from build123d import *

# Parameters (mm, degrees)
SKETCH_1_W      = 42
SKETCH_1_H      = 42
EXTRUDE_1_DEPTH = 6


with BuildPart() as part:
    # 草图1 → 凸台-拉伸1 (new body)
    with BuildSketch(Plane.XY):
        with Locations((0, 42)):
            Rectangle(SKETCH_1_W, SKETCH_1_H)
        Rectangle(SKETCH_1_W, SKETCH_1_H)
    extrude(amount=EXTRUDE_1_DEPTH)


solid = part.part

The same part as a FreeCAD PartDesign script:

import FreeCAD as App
import Part
import Sketcher
from FreeCAD import Vector
Q = App.Units.Quantity

doc = App.newDocument("Part")
params = doc.addObject("Spreadsheet::Sheet", "Params")
for row, (alias, value) in enumerate([
    ("sketch1_width", "42 mm"),
    ("sketch1_height", "84 mm"),
    ("pad1_length", "6 mm"),
], start=1):
    params.set(f"A{row}", alias)
    params.set(f"B{row}", "=" + value)
    params.setAlias(f"B{row}", alias)

body = doc.addObject("PartDesign::Body", "Body")

# Sketch on XY plane
sketch1 = doc.addObject("Sketcher::SketchObject", "Sketch")
body.addObject(sketch1)
sketch1.AttachmentSupport = (doc.XY_Plane, [""])
sketch1.MapMode = "FlatFace"
sketch1.addGeometry([
    Part.LineSegment(Vector(-21, 63, 0), Vector(-21, -21, 0)),
    Part.LineSegment(Vector(-21, -21, 0), Vector(21, -21, 0)),
    Part.LineSegment(Vector(21, -21, 0), Vector(21, 63, 0)),
    Part.LineSegment(Vector(21, 63, 0), Vector(-21, 63, 0)),
], False)
sketch1.addConstraint([
    Sketcher.Constraint("Coincident", 0, 2, 1, 1),
    Sketcher.Constraint("Coincident", 1, 2, 2, 1),
    Sketcher.Constraint("Coincident", 2, 2, 3, 1),
    Sketcher.Constraint("Coincident", 3, 2, 0, 1),
    Sketcher.Constraint("Vertical", 0),
    Sketcher.Constraint("Horizontal", 1),
    Sketcher.Constraint("Vertical", 2),
    Sketcher.Constraint("Horizontal", 3),
    Sketcher.Constraint("DistanceX", 1, 1, 1, 2, Q("42 mm")),
    Sketcher.Constraint("DistanceY", 0, 2, 0, 1, Q("84 mm")),
    Sketcher.Constraint("DistanceX", 0, 2, -1, 1, Q("21 mm")),
    Sketcher.Constraint("DistanceY", 0, 2, -1, 1, Q("21 mm")),
])
sketch1.setExpression("Constraints[8]", "Params.sketch1_width")
sketch1.setExpression("Constraints[9]", "Params.sketch1_height")
pad1 = doc.addObject("PartDesign::Pad", "Pad")
body.addObject(pad1)
pad1.Profile = sketch1
pad1.setExpression("Length", "Params.pad1_length")

doc.recompute()
